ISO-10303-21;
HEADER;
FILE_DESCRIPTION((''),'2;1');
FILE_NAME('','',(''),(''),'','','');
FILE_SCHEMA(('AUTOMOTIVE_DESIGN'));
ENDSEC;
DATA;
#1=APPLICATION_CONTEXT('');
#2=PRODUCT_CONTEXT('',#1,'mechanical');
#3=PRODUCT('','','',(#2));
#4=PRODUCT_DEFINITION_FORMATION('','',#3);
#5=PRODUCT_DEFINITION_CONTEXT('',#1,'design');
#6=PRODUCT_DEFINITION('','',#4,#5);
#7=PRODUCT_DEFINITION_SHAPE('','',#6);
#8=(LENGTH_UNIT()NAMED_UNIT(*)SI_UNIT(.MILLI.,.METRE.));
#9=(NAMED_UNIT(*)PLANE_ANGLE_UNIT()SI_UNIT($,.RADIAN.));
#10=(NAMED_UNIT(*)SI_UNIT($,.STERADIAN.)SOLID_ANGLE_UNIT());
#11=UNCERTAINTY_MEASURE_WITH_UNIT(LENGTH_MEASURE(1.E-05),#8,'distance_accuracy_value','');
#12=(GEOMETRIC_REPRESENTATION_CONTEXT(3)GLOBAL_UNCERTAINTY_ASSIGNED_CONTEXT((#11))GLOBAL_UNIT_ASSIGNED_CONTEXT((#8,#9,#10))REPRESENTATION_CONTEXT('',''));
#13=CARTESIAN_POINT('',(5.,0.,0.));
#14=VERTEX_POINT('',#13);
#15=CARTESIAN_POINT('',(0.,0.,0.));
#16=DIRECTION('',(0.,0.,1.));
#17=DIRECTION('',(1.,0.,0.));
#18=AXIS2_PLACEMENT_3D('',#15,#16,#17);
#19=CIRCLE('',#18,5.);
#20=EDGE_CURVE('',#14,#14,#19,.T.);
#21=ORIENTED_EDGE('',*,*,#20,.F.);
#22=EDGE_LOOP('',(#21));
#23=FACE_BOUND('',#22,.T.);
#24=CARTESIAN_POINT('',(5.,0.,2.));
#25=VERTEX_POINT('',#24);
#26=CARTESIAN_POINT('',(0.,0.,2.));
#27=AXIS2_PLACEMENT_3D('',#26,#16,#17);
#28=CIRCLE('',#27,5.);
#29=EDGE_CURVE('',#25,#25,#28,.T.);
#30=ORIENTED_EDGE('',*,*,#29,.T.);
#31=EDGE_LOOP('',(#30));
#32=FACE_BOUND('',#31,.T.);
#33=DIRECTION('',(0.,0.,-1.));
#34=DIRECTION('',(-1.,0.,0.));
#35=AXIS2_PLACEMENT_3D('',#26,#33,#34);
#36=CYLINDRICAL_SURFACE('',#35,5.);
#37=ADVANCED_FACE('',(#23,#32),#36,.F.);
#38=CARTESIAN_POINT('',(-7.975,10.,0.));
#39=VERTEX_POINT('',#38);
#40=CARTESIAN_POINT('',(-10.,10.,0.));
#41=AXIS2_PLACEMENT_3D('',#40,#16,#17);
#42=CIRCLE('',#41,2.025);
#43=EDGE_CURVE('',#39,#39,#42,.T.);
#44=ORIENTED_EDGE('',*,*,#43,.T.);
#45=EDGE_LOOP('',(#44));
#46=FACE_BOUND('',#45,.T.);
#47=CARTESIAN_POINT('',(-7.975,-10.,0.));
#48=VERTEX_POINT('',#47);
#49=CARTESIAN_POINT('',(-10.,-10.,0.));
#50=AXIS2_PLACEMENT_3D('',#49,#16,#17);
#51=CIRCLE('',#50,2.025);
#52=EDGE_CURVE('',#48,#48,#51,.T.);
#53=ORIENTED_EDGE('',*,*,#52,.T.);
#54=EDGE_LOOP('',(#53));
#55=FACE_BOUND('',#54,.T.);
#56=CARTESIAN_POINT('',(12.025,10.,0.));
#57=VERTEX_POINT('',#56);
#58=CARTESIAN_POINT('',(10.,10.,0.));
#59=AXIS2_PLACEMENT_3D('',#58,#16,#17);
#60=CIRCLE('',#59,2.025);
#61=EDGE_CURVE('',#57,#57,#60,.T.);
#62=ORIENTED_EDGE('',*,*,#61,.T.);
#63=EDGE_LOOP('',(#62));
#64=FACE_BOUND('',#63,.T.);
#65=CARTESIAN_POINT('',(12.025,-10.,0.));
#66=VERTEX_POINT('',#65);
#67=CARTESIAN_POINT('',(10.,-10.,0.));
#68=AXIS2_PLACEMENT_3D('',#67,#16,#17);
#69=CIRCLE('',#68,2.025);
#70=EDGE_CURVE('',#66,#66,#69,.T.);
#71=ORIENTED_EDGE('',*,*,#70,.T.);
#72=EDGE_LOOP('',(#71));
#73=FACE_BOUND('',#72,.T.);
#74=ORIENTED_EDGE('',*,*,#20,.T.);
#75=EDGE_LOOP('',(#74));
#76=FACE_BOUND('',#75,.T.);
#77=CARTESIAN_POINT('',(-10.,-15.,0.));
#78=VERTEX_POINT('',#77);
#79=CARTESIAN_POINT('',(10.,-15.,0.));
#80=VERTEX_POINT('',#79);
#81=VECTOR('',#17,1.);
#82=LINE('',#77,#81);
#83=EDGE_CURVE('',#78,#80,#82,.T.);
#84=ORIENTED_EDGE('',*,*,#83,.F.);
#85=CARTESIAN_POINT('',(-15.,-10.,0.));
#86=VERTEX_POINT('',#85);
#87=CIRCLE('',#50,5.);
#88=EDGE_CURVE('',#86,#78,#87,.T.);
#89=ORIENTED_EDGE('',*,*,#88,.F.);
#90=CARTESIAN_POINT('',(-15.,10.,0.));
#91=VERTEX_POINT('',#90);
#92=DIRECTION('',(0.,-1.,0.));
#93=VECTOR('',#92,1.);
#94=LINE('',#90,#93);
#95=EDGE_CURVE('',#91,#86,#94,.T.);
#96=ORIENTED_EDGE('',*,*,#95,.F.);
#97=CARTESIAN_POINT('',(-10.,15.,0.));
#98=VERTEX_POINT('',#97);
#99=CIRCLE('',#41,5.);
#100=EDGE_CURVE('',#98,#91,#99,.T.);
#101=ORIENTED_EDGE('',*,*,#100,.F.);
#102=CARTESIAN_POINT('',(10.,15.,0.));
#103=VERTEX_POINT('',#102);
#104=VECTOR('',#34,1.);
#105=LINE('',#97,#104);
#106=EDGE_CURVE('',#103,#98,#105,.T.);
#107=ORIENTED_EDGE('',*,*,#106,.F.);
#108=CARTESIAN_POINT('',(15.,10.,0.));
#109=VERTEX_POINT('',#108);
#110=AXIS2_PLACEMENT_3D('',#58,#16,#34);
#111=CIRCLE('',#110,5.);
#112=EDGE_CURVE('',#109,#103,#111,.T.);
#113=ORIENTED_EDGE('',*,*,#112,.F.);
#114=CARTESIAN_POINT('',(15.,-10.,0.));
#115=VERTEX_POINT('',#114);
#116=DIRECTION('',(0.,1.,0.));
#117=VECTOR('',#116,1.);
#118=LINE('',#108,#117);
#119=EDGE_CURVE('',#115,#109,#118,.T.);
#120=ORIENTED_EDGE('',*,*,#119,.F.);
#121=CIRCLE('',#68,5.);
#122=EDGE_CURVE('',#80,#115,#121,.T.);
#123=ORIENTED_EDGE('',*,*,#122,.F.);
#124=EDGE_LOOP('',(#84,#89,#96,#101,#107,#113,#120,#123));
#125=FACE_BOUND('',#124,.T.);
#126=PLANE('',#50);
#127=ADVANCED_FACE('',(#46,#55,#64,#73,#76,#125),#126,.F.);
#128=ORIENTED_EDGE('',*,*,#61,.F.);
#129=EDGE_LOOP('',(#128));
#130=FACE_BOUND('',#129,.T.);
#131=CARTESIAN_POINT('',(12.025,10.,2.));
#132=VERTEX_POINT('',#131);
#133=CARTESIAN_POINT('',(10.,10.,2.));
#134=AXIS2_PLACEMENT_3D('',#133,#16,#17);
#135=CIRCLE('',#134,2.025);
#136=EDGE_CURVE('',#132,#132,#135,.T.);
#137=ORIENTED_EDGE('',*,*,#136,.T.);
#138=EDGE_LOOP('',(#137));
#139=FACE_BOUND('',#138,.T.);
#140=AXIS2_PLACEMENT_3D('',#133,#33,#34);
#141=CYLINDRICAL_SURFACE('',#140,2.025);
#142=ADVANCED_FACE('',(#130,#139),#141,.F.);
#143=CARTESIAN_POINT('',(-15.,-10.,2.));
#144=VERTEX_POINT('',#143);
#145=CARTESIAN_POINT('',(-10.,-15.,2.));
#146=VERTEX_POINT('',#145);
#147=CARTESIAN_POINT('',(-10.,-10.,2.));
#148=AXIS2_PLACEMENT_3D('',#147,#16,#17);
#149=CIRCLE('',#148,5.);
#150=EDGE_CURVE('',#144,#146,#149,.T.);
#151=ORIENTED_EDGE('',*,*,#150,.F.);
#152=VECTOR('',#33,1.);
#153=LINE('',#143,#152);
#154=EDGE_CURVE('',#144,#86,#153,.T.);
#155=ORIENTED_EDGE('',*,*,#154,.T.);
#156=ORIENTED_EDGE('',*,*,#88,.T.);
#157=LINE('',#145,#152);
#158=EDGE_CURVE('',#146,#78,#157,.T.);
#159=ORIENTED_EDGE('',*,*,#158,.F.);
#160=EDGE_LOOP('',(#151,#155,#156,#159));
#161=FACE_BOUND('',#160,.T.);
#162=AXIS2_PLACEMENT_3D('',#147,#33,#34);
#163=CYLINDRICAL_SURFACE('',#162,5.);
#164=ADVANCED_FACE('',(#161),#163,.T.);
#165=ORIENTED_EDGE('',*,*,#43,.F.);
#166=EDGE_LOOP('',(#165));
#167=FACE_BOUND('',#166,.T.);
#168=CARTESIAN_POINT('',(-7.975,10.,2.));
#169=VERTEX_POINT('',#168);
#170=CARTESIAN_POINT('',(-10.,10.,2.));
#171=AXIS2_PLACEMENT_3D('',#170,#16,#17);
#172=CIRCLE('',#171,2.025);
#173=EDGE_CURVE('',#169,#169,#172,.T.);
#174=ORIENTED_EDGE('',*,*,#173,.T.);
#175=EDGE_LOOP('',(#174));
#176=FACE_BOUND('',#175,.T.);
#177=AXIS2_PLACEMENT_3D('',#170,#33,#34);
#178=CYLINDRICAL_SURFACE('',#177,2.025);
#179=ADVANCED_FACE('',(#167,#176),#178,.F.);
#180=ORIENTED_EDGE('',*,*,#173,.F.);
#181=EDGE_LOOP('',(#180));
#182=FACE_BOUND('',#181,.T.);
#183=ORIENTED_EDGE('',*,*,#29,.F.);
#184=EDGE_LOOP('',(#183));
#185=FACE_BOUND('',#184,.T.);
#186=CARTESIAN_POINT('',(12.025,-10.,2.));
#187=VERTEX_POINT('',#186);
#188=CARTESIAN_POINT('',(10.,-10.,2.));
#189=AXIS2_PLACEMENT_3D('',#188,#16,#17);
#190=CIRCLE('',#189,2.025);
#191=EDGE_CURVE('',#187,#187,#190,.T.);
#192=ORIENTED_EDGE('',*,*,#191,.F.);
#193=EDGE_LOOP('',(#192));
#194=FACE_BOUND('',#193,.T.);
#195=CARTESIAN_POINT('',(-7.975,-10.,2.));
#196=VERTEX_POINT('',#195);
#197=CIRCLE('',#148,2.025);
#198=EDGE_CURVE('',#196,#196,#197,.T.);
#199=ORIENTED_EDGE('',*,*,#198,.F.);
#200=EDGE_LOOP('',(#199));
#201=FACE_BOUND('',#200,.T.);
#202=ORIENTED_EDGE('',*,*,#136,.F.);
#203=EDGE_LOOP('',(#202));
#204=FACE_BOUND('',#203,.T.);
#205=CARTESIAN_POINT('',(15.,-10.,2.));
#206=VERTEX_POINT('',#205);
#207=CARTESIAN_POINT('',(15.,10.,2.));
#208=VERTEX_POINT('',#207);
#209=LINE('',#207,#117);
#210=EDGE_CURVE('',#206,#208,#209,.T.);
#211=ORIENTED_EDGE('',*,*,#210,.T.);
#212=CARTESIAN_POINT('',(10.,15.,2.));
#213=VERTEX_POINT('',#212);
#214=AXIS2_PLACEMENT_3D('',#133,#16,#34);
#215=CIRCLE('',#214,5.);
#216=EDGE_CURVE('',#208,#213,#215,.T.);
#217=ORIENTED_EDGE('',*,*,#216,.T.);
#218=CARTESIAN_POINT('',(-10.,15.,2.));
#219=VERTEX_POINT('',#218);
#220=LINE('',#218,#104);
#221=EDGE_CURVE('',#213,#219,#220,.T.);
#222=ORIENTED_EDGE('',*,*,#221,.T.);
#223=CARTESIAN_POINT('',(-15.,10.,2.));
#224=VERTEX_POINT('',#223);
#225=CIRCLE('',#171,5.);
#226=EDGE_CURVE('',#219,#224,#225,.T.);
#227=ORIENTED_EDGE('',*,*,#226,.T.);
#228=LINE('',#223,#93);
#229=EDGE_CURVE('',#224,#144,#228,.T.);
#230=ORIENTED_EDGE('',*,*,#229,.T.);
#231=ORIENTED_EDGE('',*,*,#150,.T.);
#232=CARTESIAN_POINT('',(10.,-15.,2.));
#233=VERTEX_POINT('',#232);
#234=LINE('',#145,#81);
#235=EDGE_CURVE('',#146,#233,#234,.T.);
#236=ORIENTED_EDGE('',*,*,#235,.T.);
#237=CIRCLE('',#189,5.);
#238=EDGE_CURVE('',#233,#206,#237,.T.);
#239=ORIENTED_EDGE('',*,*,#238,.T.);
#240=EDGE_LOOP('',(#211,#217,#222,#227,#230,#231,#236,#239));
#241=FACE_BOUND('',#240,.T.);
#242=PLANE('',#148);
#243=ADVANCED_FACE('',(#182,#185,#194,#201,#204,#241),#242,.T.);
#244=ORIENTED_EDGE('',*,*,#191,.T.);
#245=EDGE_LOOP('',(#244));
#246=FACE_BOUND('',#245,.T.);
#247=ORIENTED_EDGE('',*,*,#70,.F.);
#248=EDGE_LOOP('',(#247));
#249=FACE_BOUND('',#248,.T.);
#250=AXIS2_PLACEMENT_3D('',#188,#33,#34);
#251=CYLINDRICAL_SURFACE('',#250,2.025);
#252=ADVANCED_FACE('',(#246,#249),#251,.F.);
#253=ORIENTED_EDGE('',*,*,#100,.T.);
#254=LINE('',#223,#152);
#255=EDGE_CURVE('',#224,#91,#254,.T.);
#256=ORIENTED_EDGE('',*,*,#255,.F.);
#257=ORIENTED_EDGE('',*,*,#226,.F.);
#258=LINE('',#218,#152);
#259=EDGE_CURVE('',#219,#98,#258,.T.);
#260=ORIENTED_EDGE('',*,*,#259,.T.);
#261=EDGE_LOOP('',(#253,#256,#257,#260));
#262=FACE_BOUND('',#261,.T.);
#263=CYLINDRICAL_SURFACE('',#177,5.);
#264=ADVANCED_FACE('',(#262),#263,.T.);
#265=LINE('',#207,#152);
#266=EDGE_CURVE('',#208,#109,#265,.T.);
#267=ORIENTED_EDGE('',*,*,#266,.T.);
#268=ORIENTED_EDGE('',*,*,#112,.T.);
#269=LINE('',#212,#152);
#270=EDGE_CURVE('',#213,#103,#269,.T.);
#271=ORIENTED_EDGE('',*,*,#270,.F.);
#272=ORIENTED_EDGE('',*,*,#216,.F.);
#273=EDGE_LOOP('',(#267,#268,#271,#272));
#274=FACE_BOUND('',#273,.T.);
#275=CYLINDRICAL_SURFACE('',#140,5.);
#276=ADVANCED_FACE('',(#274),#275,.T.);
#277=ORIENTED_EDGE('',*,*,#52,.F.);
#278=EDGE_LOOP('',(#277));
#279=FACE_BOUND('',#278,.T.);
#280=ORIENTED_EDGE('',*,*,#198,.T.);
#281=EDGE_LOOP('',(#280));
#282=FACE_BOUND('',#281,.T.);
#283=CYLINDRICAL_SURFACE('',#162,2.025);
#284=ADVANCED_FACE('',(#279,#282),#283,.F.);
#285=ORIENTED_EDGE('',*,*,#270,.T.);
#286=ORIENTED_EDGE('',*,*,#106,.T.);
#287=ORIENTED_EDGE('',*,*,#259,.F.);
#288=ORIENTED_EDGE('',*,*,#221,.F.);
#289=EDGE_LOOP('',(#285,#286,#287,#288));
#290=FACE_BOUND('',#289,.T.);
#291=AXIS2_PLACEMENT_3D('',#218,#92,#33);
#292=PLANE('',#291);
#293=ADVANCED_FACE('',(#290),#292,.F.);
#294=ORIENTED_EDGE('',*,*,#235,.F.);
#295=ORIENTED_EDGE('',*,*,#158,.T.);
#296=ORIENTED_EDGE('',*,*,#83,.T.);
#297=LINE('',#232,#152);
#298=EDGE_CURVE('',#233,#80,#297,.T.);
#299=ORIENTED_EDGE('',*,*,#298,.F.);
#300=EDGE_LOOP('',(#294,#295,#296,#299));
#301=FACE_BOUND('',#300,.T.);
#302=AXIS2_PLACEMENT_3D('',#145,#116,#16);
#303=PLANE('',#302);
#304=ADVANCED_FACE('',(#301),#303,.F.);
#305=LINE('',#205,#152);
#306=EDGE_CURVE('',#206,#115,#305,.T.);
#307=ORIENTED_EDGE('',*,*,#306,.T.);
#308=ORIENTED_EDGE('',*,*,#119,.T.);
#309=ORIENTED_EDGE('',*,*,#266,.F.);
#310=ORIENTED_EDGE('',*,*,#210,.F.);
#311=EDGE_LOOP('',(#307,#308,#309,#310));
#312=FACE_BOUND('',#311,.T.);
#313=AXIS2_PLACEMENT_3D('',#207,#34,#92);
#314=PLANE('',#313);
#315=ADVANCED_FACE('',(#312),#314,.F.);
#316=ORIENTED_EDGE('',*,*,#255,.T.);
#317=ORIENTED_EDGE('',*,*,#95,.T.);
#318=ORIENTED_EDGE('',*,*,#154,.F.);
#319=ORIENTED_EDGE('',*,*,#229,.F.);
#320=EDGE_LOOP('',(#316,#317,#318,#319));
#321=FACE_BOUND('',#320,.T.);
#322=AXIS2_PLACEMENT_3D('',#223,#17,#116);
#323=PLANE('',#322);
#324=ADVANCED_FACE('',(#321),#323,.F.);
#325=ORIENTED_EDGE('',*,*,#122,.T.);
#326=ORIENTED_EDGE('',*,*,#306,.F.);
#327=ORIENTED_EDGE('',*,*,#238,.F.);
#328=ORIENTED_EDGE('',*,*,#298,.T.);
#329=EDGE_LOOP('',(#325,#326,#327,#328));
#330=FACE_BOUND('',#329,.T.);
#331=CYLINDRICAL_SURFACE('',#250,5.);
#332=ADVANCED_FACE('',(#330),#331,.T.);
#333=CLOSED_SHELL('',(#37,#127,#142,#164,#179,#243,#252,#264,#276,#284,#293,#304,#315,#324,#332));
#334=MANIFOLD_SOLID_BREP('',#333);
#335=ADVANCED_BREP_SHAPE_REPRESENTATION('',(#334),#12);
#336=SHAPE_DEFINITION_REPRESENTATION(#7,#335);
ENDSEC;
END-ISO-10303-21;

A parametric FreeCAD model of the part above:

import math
import FreeCAD as App
import Part
import Sketcher

doc = App.newDocument("Part")
body = doc.addObject("PartDesign::Body", "Body")

# Sketch on XY plane
sketch1 = doc.addObject("Sketcher::SketchObject", "Sketch")
body.addObject(sketch1)
sketch1.AttachmentSupport = (doc.XY_Plane, [""])
sketch1.MapMode = "FlatFace"
sketch1.addGeometry(Part.LineSegment(App.Vector(10, 15, 0), App.Vector(-10, 15, 0)), False)
sketch1.addGeometry(Part.ArcOfCircle(Part.Circle(App.Vector(-10, 10, 0), App.Vector(0, 0, 1), 5), math.radians(90), math.radians(180)), False)
sketch1.addGeometry(Part.LineSegment(App.Vector(-15, 10, 0), App.Vector(-15, -10, 0)), False)
sketch1.addGeometry(Part.ArcOfCircle(Part.Circle(App.Vector(-10, -10, 0), App.Vector(0, 0, 1), 5), math.radians(180), math.radians(270)), False)
sketch1.addGeometry(Part.LineSegment(App.Vector(-10, -15, 0), App.Vector(10, -15, 0)), False)
sketch1.addGeometry(Part.ArcOfCircle(Part.Circle(App.Vector(10, -10, 0), App.Vector(0, 0, 1), 5), math.radians(-90), math.radians(0)), False)
sketch1.addGeometry(Part.LineSegment(App.Vector(15, -10, 0), App.Vector(15, 10, 0)), False)
sketch1.addGeometry(Part.ArcOfCircle(Part.Circle(App.Vector(10, 10, 0), App.Vector(0, 0, 1), 5), math.radians(0), math.radians(90)), False)
sketch1.addGeometry(Part.Circle(App.Vector(10, -10, 0), App.Vector(0, 0, 1), 2), False)
sketch1.addGeometry(Part.Circle(App.Vector(0, 0, 0), App.Vector(0, 0, 1), 5), False)
sketch1.addGeometry(Part.Circle(App.Vector(-10, -10, 0), App.Vector(0, 0, 1), 2), False)
sketch1.addGeometry(Part.Circle(App.Vector(10, 10, 0), App.Vector(0, 0, 1), 2), False)
sketch1.addGeometry(Part.Circle(App.Vector(-10, 10, 0), App.Vector(0, 0, 1), 2), False)
sketch1.addConstraint(Sketcher.Constraint("Tangent", 0, 2, 1, 1))
sketch1.addConstraint(Sketcher.Constraint("Tangent", 1, 2, 2, 1))
sketch1.addConstraint(Sketcher.Constraint("Tangent", 2, 2, 3, 1))
sketch1.addConstraint(Sketcher.Constraint("Tangent", 3, 2, 4, 1))
sketch1.addConstraint(Sketcher.Constraint("Tangent", 4, 2, 5, 1))
sketch1.addConstraint(Sketcher.Constraint("Tangent", 5, 2, 6, 1))
sketch1.addConstraint(Sketcher.Constraint("Tangent", 6, 2, 7, 1))
sketch1.addConstraint(Sketcher.Constraint("Tangent", 7, 2, 0, 1))
sketch1.addConstraint(Sketcher.Constraint("Horizontal", 0))
sketch1.addConstraint(Sketcher.Constraint("Vertical", 2))
sketch1.addConstraint(Sketcher.Constraint("Horizontal", 4))
sketch1.addConstraint(Sketcher.Constraint("Vertical", 6))
sketch1.addConstraint(Sketcher.Constraint("Coincident", 9, 3, -1, 1))
sketch1.addConstraint(Sketcher.Constraint("Coincident", 8, 3, 5, 3))
sketch1.addConstraint(Sketcher.Constraint("Coincident", 10, 3, 3, 3))
sketch1.addConstraint(Sketcher.Constraint("Coincident", 11, 3, 7, 3))
sketch1.addConstraint(Sketcher.Constraint("Coincident", 12, 3, 1, 3))
sketch1.addConstraint(Sketcher.Constraint("Equal", 1, 3))
sketch1.addConstraint(Sketcher.Constraint("Equal", 3, 5))
sketch1.addConstraint(Sketcher.Constraint("Equal", 5, 7))
sketch1.addConstraint(Sketcher.Constraint("Equal", 7, 9))
sketch1.addConstraint(Sketcher.Constraint("Equal", 8, 10))
sketch1.addConstraint(Sketcher.Constraint("Equal", 10, 11))
sketch1.addConstraint(Sketcher.Constraint("Equal", 11, 12))
sketch1.addConstraint(Sketcher.Constraint("Symmetric", 1, 3, 5, 3, -1, 1))
sketch1.addConstraint(Sketcher.Constraint("Equal", 4, 2))
sketch1.addConstraint(Sketcher.Constraint("Diameter", 9, 10.0))
sketch1.addConstraint(Sketcher.Constraint("Diameter", 8, 4.05))
sketch1.addConstraint(Sketcher.Constraint("DistanceX", 0, 2, 0, 1, 20.0))
pad1 = doc.addObject("PartDesign::Pad", "Pad")
body.addObject(pad1)
pad1.Profile = sketch1
pad1.Length = 2

doc.recompute()
